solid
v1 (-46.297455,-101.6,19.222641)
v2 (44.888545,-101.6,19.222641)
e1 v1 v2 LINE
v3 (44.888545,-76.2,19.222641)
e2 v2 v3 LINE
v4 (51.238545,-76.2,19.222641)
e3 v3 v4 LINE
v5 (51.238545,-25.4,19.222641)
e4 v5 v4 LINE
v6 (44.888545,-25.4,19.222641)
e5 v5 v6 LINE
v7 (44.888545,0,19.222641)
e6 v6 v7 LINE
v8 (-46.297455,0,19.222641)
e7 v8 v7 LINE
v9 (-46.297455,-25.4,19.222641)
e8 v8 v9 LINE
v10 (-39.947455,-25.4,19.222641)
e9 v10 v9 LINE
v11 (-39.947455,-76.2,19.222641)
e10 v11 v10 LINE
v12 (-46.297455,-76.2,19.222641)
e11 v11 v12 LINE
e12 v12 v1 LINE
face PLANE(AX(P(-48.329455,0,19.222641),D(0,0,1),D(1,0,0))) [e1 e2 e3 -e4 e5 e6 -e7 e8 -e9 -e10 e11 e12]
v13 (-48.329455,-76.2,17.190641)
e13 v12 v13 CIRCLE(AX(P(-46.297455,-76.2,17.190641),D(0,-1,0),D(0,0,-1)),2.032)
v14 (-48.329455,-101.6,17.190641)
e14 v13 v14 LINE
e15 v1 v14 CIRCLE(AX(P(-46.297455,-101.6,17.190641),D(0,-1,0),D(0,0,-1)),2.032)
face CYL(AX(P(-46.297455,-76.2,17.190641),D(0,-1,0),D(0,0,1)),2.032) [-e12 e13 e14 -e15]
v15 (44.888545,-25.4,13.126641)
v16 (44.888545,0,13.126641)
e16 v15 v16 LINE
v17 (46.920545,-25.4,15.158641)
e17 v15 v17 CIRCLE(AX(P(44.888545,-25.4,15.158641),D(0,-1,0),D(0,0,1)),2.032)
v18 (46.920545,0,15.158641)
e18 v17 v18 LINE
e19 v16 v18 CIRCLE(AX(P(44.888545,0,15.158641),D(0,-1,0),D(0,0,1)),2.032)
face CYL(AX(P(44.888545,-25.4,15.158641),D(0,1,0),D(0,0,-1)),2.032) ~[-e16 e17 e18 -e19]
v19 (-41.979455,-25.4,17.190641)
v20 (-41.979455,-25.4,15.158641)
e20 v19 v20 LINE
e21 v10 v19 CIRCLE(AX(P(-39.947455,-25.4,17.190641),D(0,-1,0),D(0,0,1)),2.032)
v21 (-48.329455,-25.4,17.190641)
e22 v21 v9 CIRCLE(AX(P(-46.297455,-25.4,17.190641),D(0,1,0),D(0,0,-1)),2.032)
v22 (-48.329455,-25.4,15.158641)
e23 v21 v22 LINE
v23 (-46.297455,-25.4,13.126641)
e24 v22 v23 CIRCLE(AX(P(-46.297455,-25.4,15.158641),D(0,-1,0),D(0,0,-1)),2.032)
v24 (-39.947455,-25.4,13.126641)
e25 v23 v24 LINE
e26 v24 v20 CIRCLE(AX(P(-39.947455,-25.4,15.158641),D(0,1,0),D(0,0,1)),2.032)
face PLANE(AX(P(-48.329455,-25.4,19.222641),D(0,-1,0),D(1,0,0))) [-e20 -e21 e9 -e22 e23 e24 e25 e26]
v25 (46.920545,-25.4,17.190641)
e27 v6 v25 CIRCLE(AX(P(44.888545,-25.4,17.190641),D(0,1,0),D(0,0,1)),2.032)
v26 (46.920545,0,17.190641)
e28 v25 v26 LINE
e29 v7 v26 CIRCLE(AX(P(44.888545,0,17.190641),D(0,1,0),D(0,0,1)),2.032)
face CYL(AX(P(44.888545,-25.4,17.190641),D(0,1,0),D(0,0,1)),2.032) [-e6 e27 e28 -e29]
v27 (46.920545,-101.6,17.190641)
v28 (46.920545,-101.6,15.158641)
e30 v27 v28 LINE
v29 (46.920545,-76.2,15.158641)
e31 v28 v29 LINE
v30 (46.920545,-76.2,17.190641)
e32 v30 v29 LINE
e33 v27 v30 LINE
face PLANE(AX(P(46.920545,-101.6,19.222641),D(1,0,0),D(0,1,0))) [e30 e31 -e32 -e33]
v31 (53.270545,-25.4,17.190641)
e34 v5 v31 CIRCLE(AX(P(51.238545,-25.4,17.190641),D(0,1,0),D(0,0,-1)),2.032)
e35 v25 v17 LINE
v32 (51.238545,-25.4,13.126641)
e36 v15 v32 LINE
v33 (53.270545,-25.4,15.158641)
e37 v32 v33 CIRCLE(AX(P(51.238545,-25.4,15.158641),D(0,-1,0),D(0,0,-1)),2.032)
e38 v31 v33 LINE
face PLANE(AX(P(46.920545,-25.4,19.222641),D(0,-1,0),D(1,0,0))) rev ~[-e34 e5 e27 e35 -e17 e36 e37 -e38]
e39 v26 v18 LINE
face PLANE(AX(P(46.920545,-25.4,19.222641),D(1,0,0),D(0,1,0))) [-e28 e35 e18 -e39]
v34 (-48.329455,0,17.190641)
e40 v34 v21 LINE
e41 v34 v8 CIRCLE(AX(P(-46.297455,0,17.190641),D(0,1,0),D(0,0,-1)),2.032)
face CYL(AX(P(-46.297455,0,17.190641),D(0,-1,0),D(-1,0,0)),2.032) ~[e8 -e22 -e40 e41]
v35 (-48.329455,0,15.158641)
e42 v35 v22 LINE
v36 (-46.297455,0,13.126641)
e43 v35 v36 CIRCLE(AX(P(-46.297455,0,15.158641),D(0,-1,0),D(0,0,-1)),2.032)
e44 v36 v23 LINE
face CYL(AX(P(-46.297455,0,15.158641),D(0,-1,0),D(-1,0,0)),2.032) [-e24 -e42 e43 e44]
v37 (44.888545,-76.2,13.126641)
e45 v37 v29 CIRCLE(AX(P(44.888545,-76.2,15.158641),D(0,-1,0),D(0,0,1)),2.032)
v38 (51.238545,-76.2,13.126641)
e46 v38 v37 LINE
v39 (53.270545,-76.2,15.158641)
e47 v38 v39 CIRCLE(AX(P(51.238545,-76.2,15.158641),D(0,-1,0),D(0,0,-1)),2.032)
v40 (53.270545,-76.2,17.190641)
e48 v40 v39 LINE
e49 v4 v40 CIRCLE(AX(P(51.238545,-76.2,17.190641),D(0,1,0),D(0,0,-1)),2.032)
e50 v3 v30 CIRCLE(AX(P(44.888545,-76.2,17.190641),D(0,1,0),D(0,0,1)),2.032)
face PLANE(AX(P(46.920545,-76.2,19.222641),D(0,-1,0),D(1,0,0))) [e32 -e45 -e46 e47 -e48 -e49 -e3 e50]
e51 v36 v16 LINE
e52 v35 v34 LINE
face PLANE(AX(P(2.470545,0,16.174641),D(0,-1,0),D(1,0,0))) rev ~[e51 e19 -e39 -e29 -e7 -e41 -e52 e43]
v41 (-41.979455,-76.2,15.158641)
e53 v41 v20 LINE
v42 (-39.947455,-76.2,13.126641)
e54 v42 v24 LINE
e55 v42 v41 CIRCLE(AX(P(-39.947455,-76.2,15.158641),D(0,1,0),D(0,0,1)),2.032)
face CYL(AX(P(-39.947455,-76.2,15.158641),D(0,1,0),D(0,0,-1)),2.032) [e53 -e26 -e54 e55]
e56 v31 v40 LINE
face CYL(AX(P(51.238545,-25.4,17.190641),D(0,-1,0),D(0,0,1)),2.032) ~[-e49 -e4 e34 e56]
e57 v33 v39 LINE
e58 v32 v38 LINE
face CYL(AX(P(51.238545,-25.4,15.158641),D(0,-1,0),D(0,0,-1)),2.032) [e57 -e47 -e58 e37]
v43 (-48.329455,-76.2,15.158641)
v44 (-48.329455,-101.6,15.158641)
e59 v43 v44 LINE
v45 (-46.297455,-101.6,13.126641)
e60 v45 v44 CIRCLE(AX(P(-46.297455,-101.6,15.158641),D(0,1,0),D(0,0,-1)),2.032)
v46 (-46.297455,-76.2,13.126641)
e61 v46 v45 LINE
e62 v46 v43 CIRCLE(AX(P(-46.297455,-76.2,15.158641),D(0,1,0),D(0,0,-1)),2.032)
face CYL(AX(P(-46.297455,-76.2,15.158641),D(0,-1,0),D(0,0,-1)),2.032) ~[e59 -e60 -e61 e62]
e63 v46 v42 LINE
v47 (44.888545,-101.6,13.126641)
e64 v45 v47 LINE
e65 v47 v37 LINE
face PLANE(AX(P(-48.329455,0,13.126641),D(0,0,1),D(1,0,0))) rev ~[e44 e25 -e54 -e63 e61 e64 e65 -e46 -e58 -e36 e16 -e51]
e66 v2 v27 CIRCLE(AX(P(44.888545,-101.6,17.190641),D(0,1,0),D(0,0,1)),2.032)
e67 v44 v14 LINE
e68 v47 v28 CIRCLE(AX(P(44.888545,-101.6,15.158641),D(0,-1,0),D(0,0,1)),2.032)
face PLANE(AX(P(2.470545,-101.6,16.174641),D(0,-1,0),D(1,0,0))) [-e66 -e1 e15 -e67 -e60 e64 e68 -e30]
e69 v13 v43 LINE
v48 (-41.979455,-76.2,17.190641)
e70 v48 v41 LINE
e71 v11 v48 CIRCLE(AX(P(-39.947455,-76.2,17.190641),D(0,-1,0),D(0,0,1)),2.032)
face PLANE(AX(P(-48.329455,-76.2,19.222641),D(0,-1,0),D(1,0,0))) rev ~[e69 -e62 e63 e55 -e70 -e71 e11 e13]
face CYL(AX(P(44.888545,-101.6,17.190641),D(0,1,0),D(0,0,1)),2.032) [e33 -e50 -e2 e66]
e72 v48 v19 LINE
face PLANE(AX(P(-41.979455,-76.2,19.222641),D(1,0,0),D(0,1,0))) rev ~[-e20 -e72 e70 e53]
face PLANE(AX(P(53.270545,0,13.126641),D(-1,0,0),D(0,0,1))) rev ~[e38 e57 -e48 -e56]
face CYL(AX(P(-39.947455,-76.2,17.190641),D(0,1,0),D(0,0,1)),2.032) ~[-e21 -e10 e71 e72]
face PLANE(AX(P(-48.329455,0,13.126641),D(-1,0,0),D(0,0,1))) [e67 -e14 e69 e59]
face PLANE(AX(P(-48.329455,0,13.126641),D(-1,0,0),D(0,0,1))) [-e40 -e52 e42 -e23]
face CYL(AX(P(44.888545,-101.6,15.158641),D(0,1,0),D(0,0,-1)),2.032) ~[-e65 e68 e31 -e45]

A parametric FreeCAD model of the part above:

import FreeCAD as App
import Part
import Sketcher
Q = App.Units.Quantity


def edges_at(feature, points):
    """Names of the edges that pass closest to the given points."""
    edges = feature.Shape.Edges
    near = lambda p: min(range(len(edges)), key=lambda i: edges[i].distToShape(Part.Vertex(*p))[0])
    return sorted({f"Edge{near(p) + 1}" for p in points})

doc = App.newDocument("Part")
body = doc.addObject("PartDesign::Body", "Body")

# Sketch on XZ plane
sketch1 = body.newObject("Sketcher::SketchObject", "Sketch")
sketch1.AttachmentSupport = (doc.getObject("XZ_Plane"), [""])
sketch1.MapMode = "FlatFace"
sketch1.addGeometry([
    Part.LineSegment(App.Vector(-48, 19, 0), App.Vector(-48, 13, 0)),
    Part.LineSegment(App.Vector(-48, 13, 0), App.Vector(53, 13, 0)),
    Part.LineSegment(App.Vector(53, 13, 0), App.Vector(53, 19, 0)),
    Part.LineSegment(App.Vector(53, 19, 0), App.Vector(-48, 19, 0)),
], False)
sketch1.addConstraint([
    Sketcher.Constraint("Coincident", 0, 2, 1, 1),
    Sketcher.Constraint("Coincident", 1, 2, 2, 1),
    Sketcher.Constraint("Coincident", 2, 2, 3, 1),
    Sketcher.Constraint("Coincident", 3, 2, 0, 1),
    Sketcher.Constraint("Vertical", 0),
    Sketcher.Constraint("Horizontal", 1),
    Sketcher.Constraint("Vertical", 2),
    Sketcher.Constraint("Horizontal", 3),
    Sketcher.Constraint("DistanceX", 1, 1, 1, 2, Q("4 in")),
    Sketcher.Constraint("DistanceY", 0, 2, 0, 1, Q("0.24 in")),
    Sketcher.Constraint("DistanceY", -1, 1, 0, 2, Q("13.126641 mm")),
    Sketcher.Constraint("DistanceX", 0, 2, -1, 1, Q("48.329455 mm")),
])
pad1 = body.newObject("PartDesign::Pad", "Pad")
pad1.Profile = sketch1
pad1.Length = Q("4 in")

# Sketch on XY plane
sketch2 = body.newObject("Sketcher::SketchObject", "Sketch001")
sketch2.AttachmentSupport = (doc.getObject("XY_Plane"), [""])
sketch2.MapMode = "FlatFace"
sketch2.AttachmentOffset = App.Placement(App.Vector(0, 0, 19.222641), App.Rotation())
sketch2.addGeometry([
    Part.LineSegment(App.Vector(-48, -25, 0), App.Vector(-48, -76, 0)),  # 0
    Part.LineSegment(App.Vector(-48, -76, 0), App.Vector(-42, -76, 0)),  # 1
    Part.LineSegment(App.Vector(-42, -76, 0), App.Vector(-42, -25, 0)),  # 2
    Part.LineSegment(App.Vector(-42, -25, 0), App.Vector(-48, -25, 0)),  # 3
    Part.LineSegment(App.Vector(47, 0, 0), App.Vector(47, -25, 0)),  # 4
    Part.LineSegment(App.Vector(47, -25, 0), App.Vector(53, -25, 0)),  # 5
    Part.LineSegment(App.Vector(53, -25, 0), App.Vector(53, 0, 0)),  # 6
    Part.LineSegment(App.Vector(53, 0, 0), App.Vector(47, 0, 0)),  # 7
    Part.LineSegment(App.Vector(47, -76, 0), App.Vector(47, -102, 0)),  # 8
    Part.LineSegment(App.Vector(47, -102, 0), App.Vector(53, -102, 0)),  # 9
    Part.LineSegment(App.Vector(53, -102, 0), App.Vector(53, -76, 0)),  # 10
    Part.LineSegment(App.Vector(53, -76, 0), App.Vector(47, -76, 0)),  # 11
], False)
sketch2.addConstraint([
    Sketcher.Constraint("Coincident", 0, 2, 1, 1),
    Sketcher.Constraint("Coincident", 1, 2, 2, 1),
    Sketcher.Constraint("Coincident", 2, 2, 3, 1),
    Sketcher.Constraint("Coincident", 3, 2, 0, 1),
    Sketcher.Constraint("Coincident", 4, 2, 5, 1),
    Sketcher.Constraint("Coincident", 5, 2, 6, 1),
    Sketcher.Constraint("Coincident", 6, 2, 7, 1),
    Sketcher.Constraint("Coincident", 7, 2, 4, 1),
    Sketcher.Constraint("Coincident", 8, 2, 9, 1),
    Sketcher.Constraint("Coincident", 9, 2, 10, 1),
    Sketcher.Constraint("Coincident", 10, 2, 11, 1),
    Sketcher.Constraint("Coincident", 11, 2, 8, 1),
    Sketcher.Constraint("Vertical", 0),
    Sketcher.Constraint("Horizontal", 1),
    Sketcher.Constraint("Vertical", 2),
    Sketcher.Constraint("Horizontal", 3),
    Sketcher.Constraint("Vertical", 4),
    Sketcher.Constraint("Horizontal", 5),
    Sketcher.Constraint("Vertical", 6),
    Sketcher.Constraint("Horizontal", 7),
    Sketcher.Constraint("Vertical", 8),
    Sketcher.Constraint("Horizontal", 9),
    Sketcher.Constraint("Vertical", 10),
    Sketcher.Constraint("Horizontal", 11),
    Sketcher.Constraint("PointOnObject", 6, 2, -1),
    Sketcher.Constraint("Horizontal", 3, 2, 4, 2),
    Sketcher.Constraint("Horizontal", 1, 2, 10, 2),
    Sketcher.Constraint("Vertical", 7, 2, 8, 2),
    Sketcher.Constraint("Vertical", 6, 2, 9, 2),
    Sketcher.Constraint("Equal", 3, 5),
    Sketcher.Constraint("Equal", 6, 8),
    Sketcher.Constraint("DistanceY", 0, 2, 0, 1, Q("2 in")),
    Sketcher.Constraint("DistanceY", 4, 2, 4, 1, Q("1 in")),
    Sketcher.Constraint("DistanceX", 3, 2, 5, 2, Q("4 in")),
    Sketcher.Constraint("DistanceX", 1, 1, 1, 2, Q("0.25 in")),
    Sketcher.Constraint("DistanceX", 0, 2, -1, 1, Q("48.329455 mm")),
])
pocket1 = body.newObject("PartDesign::Pocket", "Pocket")
pocket1.Profile = sketch2
pocket1.Length = Q("1 in")
doc.recompute()

fillet = body.newObject("PartDesign::Fillet", "Fillet")
fillet.Base = (pocket1, edges_at(pocket1, [
    (53.271, -50.8, 19.223),
    (46.921, -88.9, 19.223),
    (46.921, -12.7, 19.223),
    (53.271, -50.8, 13.127),
    (46.921, -12.7, 13.127),
    (46.921, -88.9, 13.127),
    (-41.979, -50.8, 19.223),
    (-48.329, -12.7, 19.223),
    (-48.329, -88.9, 19.223),
    (-41.979, -50.8, 13.127),
    (-48.329, -12.7, 13.127),
    (-48.329, -88.9, 13.127),
]))
fillet.Radius = Q("0.08 in")

doc.recompute()
